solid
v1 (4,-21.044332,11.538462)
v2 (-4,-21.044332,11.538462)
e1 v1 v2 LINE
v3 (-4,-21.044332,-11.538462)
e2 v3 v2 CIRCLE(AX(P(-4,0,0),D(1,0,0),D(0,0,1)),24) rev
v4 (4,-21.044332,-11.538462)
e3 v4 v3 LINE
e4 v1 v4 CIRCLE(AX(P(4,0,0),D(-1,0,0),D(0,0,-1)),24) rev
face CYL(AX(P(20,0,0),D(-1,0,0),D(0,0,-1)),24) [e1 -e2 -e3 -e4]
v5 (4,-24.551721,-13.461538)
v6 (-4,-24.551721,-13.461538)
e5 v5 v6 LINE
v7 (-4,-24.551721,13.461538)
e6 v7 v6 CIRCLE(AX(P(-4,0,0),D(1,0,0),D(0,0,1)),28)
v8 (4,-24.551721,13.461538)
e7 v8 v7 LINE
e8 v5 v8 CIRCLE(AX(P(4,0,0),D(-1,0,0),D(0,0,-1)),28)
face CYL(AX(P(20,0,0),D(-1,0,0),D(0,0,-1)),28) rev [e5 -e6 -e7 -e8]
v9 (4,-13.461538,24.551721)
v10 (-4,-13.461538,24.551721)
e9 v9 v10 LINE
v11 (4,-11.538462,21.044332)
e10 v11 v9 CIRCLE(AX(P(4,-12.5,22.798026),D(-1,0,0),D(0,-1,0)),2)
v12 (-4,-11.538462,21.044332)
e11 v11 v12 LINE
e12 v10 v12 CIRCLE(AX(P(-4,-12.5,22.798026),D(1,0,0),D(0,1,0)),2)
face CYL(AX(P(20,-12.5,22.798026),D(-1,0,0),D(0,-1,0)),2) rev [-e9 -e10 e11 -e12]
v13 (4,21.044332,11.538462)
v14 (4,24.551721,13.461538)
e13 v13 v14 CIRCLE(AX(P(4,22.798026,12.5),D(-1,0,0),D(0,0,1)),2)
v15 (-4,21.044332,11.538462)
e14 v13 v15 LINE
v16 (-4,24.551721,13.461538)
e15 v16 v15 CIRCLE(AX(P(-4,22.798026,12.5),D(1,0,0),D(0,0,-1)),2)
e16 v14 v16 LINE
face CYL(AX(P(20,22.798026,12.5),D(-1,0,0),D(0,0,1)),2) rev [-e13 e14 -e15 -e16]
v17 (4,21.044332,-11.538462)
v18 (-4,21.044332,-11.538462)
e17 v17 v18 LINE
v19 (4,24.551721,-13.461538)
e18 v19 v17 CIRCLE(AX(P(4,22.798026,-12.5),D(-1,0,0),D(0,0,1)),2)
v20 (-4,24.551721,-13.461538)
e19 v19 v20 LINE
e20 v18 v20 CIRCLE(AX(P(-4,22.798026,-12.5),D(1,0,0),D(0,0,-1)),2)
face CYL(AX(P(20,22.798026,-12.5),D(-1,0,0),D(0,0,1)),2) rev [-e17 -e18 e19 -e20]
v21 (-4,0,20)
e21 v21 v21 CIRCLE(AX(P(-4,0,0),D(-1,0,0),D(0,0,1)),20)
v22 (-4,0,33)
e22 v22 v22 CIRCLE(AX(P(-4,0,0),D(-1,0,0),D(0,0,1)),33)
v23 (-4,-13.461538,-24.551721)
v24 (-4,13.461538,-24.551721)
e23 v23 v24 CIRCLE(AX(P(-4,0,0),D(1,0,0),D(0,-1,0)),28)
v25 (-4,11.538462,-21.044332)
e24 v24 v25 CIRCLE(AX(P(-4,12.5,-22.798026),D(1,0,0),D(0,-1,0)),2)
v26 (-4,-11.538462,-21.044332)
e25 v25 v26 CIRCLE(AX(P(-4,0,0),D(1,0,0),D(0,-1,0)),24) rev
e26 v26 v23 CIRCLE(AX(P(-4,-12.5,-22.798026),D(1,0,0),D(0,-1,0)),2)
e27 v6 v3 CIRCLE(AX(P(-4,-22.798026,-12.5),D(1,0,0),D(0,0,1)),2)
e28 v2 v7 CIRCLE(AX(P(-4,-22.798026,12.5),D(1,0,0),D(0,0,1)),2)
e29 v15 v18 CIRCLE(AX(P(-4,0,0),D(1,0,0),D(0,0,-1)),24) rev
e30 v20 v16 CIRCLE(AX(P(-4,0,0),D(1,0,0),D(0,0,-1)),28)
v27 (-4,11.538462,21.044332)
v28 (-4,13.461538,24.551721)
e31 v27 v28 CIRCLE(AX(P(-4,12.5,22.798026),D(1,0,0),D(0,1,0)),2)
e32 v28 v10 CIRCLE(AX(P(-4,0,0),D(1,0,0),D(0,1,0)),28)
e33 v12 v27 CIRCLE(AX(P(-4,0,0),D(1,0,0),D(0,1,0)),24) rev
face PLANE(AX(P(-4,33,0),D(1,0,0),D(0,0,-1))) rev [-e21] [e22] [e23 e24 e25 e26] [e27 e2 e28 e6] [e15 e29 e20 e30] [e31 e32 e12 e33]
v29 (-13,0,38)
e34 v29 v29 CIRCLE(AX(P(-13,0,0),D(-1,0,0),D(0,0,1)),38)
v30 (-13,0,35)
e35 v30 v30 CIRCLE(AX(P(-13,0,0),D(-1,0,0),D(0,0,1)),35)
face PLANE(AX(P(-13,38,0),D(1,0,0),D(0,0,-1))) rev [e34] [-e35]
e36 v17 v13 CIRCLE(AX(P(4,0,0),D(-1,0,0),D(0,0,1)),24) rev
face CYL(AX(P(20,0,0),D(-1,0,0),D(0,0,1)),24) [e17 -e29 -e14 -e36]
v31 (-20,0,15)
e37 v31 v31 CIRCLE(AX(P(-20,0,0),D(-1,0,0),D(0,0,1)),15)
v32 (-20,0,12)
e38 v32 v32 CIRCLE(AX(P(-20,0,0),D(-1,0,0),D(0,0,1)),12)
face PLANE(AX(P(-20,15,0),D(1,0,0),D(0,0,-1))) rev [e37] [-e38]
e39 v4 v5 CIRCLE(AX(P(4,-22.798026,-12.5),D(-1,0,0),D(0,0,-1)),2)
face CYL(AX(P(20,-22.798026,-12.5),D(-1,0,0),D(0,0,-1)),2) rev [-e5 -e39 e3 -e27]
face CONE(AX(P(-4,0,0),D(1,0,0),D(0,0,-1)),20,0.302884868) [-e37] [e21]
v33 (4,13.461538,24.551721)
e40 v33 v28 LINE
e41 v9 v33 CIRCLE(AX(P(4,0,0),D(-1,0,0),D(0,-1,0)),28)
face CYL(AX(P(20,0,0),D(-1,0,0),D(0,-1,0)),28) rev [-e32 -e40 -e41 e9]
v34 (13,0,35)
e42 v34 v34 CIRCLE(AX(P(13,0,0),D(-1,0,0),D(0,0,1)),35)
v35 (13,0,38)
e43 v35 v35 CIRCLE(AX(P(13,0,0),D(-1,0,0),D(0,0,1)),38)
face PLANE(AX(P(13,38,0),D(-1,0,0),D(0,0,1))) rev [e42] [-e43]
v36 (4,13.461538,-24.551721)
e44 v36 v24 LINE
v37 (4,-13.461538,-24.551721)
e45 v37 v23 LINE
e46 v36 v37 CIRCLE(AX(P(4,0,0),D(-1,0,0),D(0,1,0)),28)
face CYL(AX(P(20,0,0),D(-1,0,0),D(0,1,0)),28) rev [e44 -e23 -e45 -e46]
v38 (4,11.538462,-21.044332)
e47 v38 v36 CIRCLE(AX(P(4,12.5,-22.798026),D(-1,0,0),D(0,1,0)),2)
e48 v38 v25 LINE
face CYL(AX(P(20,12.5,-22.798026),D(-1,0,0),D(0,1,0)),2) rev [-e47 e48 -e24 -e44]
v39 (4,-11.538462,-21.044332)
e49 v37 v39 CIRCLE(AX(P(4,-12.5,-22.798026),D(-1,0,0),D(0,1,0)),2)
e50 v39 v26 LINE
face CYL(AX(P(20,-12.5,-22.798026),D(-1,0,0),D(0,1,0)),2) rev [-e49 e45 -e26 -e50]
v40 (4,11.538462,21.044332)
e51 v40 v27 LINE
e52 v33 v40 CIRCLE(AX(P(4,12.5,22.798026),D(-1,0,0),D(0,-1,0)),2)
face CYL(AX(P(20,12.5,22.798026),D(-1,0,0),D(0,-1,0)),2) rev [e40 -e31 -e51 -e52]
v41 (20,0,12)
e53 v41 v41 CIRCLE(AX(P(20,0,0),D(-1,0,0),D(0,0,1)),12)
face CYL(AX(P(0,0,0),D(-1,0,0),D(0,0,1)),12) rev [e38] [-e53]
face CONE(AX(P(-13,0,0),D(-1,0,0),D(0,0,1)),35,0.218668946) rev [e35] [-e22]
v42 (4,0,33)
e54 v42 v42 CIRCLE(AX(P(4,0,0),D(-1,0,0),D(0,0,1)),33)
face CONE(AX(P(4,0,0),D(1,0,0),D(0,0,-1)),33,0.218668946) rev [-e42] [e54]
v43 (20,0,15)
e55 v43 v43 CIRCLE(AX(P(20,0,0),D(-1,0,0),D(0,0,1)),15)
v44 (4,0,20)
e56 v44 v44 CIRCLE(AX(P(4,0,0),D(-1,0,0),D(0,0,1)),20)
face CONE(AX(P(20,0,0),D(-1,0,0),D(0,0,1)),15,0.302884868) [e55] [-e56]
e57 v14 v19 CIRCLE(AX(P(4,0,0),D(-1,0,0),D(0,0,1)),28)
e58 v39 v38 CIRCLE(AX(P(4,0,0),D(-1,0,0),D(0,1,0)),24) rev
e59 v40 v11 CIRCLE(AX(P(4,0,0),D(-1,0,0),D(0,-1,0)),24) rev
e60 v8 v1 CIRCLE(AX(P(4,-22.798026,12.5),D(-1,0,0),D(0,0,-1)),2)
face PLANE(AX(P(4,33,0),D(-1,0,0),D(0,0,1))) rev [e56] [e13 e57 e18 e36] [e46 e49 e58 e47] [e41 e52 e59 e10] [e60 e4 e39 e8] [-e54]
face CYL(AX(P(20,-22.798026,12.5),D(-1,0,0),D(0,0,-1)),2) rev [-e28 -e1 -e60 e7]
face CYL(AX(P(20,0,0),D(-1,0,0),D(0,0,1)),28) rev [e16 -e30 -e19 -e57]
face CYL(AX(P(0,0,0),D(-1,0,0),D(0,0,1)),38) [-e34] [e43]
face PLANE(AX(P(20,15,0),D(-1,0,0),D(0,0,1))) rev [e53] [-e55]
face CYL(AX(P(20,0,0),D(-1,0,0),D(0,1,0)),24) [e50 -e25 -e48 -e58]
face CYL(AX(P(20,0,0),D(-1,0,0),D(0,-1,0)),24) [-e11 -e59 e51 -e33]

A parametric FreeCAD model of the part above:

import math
import FreeCAD as App
import Part
import Sketcher
from FreeCAD import Vector
Q = App.Units.Quantity

doc = App.newDocument("Part")
body = doc.addObject("PartDesign::Body", "Body")

sketch1 = body.newObject("Sketcher::SketchObject", "Sketch")
sketch1.AttachmentSupport = (doc.getObject("XY_Plane"), [""])
sketch1.MapMode = "FlatFace"
sketch1.addGeometry([
    Part.LineSegment(Vector(13, 38, 0), Vector(-13, 38, 0)),
    Part.LineSegment(Vector(-13, 38, 0), Vector(-13, 35, 0)),
    Part.LineSegment(Vector(-13, 35, 0), Vector(-4, 33, 0)),
    Part.LineSegment(Vector(-4, 33, 0), Vector(-4, 20, 0)),
    Part.LineSegment(Vector(-4, 20, 0), Vector(-20, 15, 0)),
    Part.LineSegment(Vector(-20, 15, 0), Vector(-20, 12, 0)),
    Part.LineSegment(Vector(-20, 12, 0), Vector(20, 12, 0)),
    Part.LineSegment(Vector(20, 12, 0), Vector(20, 15, 0)),
    Part.LineSegment(Vector(20, 15, 0), Vector(4, 20, 0)),
    Part.LineSegment(Vector(4, 20, 0), Vector(4, 33, 0)),
    Part.LineSegment(Vector(4, 33, 0), Vector(13, 35, 0)),
    Part.LineSegment(Vector(13, 35, 0), Vector(13, 38, 0)),
], False)
sketch1.addConstraint([
    Sketcher.Constraint("Coincident", 0, 2, 1, 1),
    Sketcher.Constraint("Coincident", 1, 2, 2, 1),
    Sketcher.Constraint("Coincident", 2, 2, 3, 1),
    Sketcher.Constraint("Coincident", 3, 2, 4, 1),
    Sketcher.Constraint("Coincident", 4, 2, 5, 1),
    Sketcher.Constraint("Coincident", 5, 2, 6, 1),
    Sketcher.Constraint("Coincident", 6, 2, 7, 1),
    Sketcher.Constraint("Coincident", 7, 2, 8, 1),
    Sketcher.Constraint("Coincident", 8, 2, 9, 1),
    Sketcher.Constraint("Coincident", 9, 2, 10, 1),
    Sketcher.Constraint("Coincident", 10, 2, 11, 1),
    Sketcher.Constraint("Coincident", 11, 2, 0, 1),
    Sketcher.Constraint("Horizontal", 0),
    Sketcher.Constraint("Vertical", 1),
    Sketcher.Constraint("Vertical", 3),
    Sketcher.Constraint("Vertical", 5),
    Sketcher.Constraint("Horizontal", 6),
    Sketcher.Constraint("Vertical", 7),
    Sketcher.Constraint("Vertical", 9),
    Sketcher.Constraint("Vertical", 11),
    Sketcher.Constraint("Symmetric", 4, 2, 7, 2, -2),
    Sketcher.Constraint("Symmetric", 3, 2, 8, 2, -2),
    Sketcher.Constraint("Symmetric", 1, 2, 10, 2, -2),
    Sketcher.Constraint("Horizontal", 2, 2, 9, 2),
    Sketcher.Constraint("Equal", 1, 5),
    Sketcher.Constraint("DistanceX", 0, 2, 0, 1, Q("26 mm")),
    Sketcher.Constraint("DistanceX", 6, 1, 6, 2, Q("40 mm")),
    Sketcher.Constraint("DistanceY", 1, 2, 1, 1, Q("3 mm")),
    Sketcher.Constraint("DistanceY", 3, 2, 3, 1, Q("13 mm")),
    Sketcher.Constraint("DistanceY", -1, 1, 0, 2, Q("38 mm")),
    Sketcher.Constraint("DistanceX", 2, 2, -1, 1, Q("4 mm")),
    Sketcher.Constraint("DistanceY", -1, 1, 2, 2, Q("33 mm")),
    Sketcher.Constraint("DistanceY", -1, 1, 4, 2, Q("15 mm")),
])
revolution = body.newObject("PartDesign::Revolution", "Revolution")
revolution.Profile = sketch1
revolution.ReferenceAxis = (sketch1, ["H_Axis"])
revolution.Angle = 360

sketch2 = body.newObject("Sketcher::SketchObject", "Sketch001")
sketch2.AttachmentSupport = (doc.getObject("YZ_Plane"), [""])
sketch2.MapMode = "FlatFace"
sketch2.AttachmentOffset = App.Placement(Vector(0, 0, -4), App.Rotation())
sketch2.addGeometry([
    Part.ArcOfCircle(Part.Circle(Vector(0, 0, 0), Vector(0, 0, 1), 28), math.radians(-28.735654), math.radians(28.735654)),
    Part.ArcOfCircle(Part.Circle(Vector(22.798026, -12.5, 0), Vector(0, 0, 1), 2), math.radians(151.264346), math.radians(331.264346)),
    Part.ArcOfCircle(Part.Circle(Vector(0, 0, 0), Vector(0, 0, 1), 24), math.radians(-28.735654), math.radians(28.735654)),
    Part.ArcOfCircle(Part.Circle(Vector(22.798026, 12.5, 0), Vector(0, 0, 1), 2), math.radians(28.735654), math.radians(208.735654)),
], False)
sketch2.addConstraint([
    Sketcher.Constraint("Tangent", 0, 1, 1, 2),
    Sketcher.Constraint("Tangent", 1, 1, 2, 1),
    Sketcher.Constraint("Tangent", 2, 2, 3, 2),
    Sketcher.Constraint("Tangent", 3, 1, 0, 2),
    Sketcher.Constraint("Coincident", 0, 3, -1, 1),
    Sketcher.Constraint("Coincident", 2, 3, -1, 1),
    Sketcher.Constraint("Vertical", 1, 3, 3, 3),
    Sketcher.Constraint("Radius", 0, Q("28 mm")),
    Sketcher.Constraint("Radius", 1, Q("2 mm")),
    Sketcher.Constraint("DistanceY", 1, 3, 3, 3, Q("25 mm")),
])
pocket1 = body.newObject("PartDesign::Pocket", "Pocket")
pocket1.Profile = sketch2
pocket1.Length = 119.711512
pocket1.Midplane = True
doc.recompute()

polarpattern = body.newObject("PartDesign::PolarPattern", "PolarPattern")
polarpattern.Originals = [pocket1]
polarpattern.Axis = (doc.getObject("X_Axis"), [""])
polarpattern.Angle = 360
polarpattern.Occurrences = 4
body.Tip = polarpattern

doc.recompute()
